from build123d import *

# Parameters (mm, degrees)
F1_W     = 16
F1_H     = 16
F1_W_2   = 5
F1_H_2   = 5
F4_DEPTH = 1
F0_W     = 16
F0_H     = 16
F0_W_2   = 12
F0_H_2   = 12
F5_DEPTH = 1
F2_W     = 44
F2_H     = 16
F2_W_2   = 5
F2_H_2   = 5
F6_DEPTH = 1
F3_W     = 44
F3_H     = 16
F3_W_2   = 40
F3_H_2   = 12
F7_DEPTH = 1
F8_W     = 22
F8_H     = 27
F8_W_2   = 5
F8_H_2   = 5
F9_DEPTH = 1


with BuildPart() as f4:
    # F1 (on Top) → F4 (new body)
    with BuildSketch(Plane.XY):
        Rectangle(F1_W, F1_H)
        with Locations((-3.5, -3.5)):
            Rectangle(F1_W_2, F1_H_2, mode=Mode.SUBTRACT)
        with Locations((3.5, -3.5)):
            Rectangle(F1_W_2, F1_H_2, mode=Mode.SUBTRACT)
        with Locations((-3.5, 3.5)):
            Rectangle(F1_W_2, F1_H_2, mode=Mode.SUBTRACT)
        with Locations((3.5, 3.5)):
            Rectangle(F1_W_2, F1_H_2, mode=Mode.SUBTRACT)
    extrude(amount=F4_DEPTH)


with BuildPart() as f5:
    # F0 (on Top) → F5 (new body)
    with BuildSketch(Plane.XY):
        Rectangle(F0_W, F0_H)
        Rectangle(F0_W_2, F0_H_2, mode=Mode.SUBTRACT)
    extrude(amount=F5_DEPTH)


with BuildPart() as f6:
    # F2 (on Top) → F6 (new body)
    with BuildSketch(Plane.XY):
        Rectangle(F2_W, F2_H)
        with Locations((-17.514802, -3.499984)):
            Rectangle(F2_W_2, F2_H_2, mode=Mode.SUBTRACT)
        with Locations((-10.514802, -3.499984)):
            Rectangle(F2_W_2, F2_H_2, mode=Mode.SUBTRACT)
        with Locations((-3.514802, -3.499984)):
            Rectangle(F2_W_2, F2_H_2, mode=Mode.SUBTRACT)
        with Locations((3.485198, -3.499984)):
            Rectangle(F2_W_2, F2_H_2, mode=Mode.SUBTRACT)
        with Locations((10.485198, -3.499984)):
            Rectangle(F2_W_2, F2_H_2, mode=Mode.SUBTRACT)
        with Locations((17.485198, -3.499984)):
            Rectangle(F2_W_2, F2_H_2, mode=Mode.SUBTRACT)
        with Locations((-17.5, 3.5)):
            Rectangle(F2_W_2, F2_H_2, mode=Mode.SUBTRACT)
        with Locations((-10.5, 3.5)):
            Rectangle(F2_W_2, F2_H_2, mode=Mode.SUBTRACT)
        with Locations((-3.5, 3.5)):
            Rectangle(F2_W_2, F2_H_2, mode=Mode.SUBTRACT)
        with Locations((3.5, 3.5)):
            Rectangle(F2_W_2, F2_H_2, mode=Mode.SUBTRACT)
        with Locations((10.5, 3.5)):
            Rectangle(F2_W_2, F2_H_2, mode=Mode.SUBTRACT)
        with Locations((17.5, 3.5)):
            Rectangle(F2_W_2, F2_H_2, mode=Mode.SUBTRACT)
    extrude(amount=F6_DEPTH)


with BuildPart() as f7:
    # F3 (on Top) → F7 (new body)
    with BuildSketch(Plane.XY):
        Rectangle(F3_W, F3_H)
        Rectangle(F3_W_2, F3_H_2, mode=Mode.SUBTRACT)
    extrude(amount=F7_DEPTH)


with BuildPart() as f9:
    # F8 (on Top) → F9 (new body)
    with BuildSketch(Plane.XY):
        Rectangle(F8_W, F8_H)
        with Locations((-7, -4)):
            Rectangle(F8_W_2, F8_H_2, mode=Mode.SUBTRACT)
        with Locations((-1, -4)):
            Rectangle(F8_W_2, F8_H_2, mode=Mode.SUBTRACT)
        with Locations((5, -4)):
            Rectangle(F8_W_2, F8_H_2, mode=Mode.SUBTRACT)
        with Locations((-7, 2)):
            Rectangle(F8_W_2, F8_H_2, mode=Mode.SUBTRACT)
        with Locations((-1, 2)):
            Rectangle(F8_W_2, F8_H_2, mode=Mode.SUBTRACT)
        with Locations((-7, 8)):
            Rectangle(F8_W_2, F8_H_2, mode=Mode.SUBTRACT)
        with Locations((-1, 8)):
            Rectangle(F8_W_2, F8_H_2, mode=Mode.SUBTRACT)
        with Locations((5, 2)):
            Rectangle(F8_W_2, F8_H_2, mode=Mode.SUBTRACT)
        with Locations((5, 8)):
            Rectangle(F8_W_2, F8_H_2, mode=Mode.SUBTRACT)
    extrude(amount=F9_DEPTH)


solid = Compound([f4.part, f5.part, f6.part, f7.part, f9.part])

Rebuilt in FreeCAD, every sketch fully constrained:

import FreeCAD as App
import Part
import Sketcher
Q = App.Units.Quantity

doc = App.newDocument("Part")
body = doc.addObject("PartDesign::Body", "Body")

# Sketch on XY plane
sketch1 = doc.addObject("Sketcher::SketchObject", "Sketch")
body.addObject(sketch1)
sketch1.AttachmentSupport = (doc.XY_Plane, [""])
sketch1.MapMode = "FlatFace"
sketch1.addGeometry([
    Part.LineSegment(App.Vector(-8, 8, 0), App.Vector(-8, -8, 0)),  # 0
    Part.LineSegment(App.Vector(-8, -8, 0), App.Vector(8, -8, 0)),  # 1
    Part.LineSegment(App.Vector(8, -8, 0), App.Vector(8, 8, 0)),  # 2
    Part.LineSegment(App.Vector(8, 8, 0), App.Vector(-8, 8, 0)),  # 3
    Part.LineSegment(App.Vector(-1, -6, 0), App.Vector(-6, -6, 0)),  # 4
    Part.LineSegment(App.Vector(-6, -6, 0), App.Vector(-6, -1, 0)),  # 5
    Part.LineSegment(App.Vector(-6, -1, 0), App.Vector(-1, -1, 0)),  # 6
    Part.LineSegment(App.Vector(-1, -1, 0), App.Vector(-1, -6, 0)),  # 7
    Part.LineSegment(App.Vector(6, -6, 0), App.Vector(1, -6, 0)),  # 8
    Part.LineSegment(App.Vector(1, -6, 0), App.Vector(1, -1, 0)),  # 9
    Part.LineSegment(App.Vector(1, -1, 0), App.Vector(6, -1, 0)),  # 10
    Part.LineSegment(App.Vector(6, -1, 0), App.Vector(6, -6, 0)),  # 11
    Part.LineSegment(App.Vector(-1, 1, 0), App.Vector(-6, 1, 0)),  # 12
    Part.LineSegment(App.Vector(-6, 1, 0), App.Vector(-6, 6, 0)),  # 13
    Part.LineSegment(App.Vector(-6, 6, 0), App.Vector(-1, 6, 0)),  # 14
    Part.LineSegment(App.Vector(-1, 6, 0), App.Vector(-1, 1, 0)),  # 15
    Part.LineSegment(App.Vector(6, 1, 0), App.Vector(1, 1, 0)),  # 16
    Part.LineSegment(App.Vector(1, 1, 0), App.Vector(1, 6, 0)),  # 17
    Part.LineSegment(App.Vector(1, 6, 0), App.Vector(6, 6, 0)),  # 18
    Part.LineSegment(App.Vector(6, 6, 0), App.Vector(6, 1, 0)),  # 19
], False)
sketch1.addConstraint([
    Sketcher.Constraint("Coincident", 0, 2, 1, 1),
    Sketcher.Constraint("Coincident", 1, 2, 2, 1),
    Sketcher.Constraint("Coincident", 2, 2, 3, 1),
    Sketcher.Constraint("Coincident", 3, 2, 0, 1),
    Sketcher.Constraint("Coincident", 4, 2, 5, 1),
    Sketcher.Constraint("Coincident", 5, 2, 6, 1),
    Sketcher.Constraint("Coincident", 6, 2, 7, 1),
    Sketcher.Constraint("Coincident", 7, 2, 4, 1),
    Sketcher.Constraint("Coincident", 8, 2, 9, 1),
    Sketcher.Constraint("Coincident", 9, 2, 10, 1),
    Sketcher.Constraint("Coincident", 10, 2, 11, 1),
    Sketcher.Constraint("Coincident", 11, 2, 8, 1),
    Sketcher.Constraint("Coincident", 12, 2, 13, 1),
    Sketcher.Constraint("Coincident", 13, 2, 14, 1),
    Sketcher.Constraint("Coincident", 14, 2, 15, 1),
    Sketcher.Constraint("Coincident", 15, 2, 12, 1),
    Sketcher.Constraint("Coincident", 16, 2, 17, 1),
    Sketcher.Constraint("Coincident", 17, 2, 18, 1),
    Sketcher.Constraint("Coincident", 18, 2, 19, 1),
    Sketcher.Constraint("Coincident", 19, 2, 16, 1),
    Sketcher.Constraint("Vertical", 0),
    Sketcher.Constraint("Horizontal", 1),
    Sketcher.Constraint("Vertical", 2),
    Sketcher.Constraint("Horizontal", 3),
    Sketcher.Constraint("Horizontal", 4),
    Sketcher.Constraint("Vertical", 5),
    Sketcher.Constraint("Horizontal", 6),
    Sketcher.Constraint("Vertical", 7),
    Sketcher.Constraint("Horizontal", 8),
    Sketcher.Constraint("Vertical", 9),
    Sketcher.Constraint("Horizontal", 10),
    Sketcher.Constraint("Vertical", 11),
    Sketcher.Constraint("Horizontal", 12),
    Sketcher.Constraint("Vertical", 13),
    Sketcher.Constraint("Horizontal", 14),
    Sketcher.Constraint("Vertical", 15),
    Sketcher.Constraint("Horizontal", 16),
    Sketcher.Constraint("Vertical", 17),
    Sketcher.Constraint("Horizontal", 18),
    Sketcher.Constraint("Vertical", 19),
    Sketcher.Constraint("Symmetric", 0, 2, 2, 2, -1, 1),
    Sketcher.Constraint("Symmetric", 10, 2, 12, 2, -1, 1),
    Sketcher.Constraint("Symmetric", 8, 2, 14, 2, -1, 1),
    Sketcher.Constraint("Symmetric", 6, 2, 16, 2, -1, 1),
    Sketcher.Constraint("Symmetric", 4, 2, 18, 2, -1, 1),
    Sketcher.Constraint("Symmetric", 7, 2, 8, 2, -2),
    Sketcher.Constraint("Symmetric", 5, 2, 10, 2, -2),
    Sketcher.Constraint("Equal", 3, 0),
    Sketcher.Constraint("Equal", 18, 5),
    Sketcher.Constraint("DistanceX", 1, 1, 1, 2, Q("16 mm")),
    Sketcher.Constraint("DistanceX", 4, 2, 4, 1, Q("5 mm")),
    Sketcher.Constraint("DistanceX", 4, 2, -1, 1, Q("6 mm")),
    Sketcher.Constraint("DistanceY", 4, 2, -1, 1, Q("6 mm")),
])
pad1 = doc.addObject("PartDesign::Pad", "Pad")
body.addObject(pad1)
pad1.Profile = sketch1
pad1.Length = 1
body2 = doc.addObject("PartDesign::Body", "Body001")

# Sketch on XY plane
sketch2 = doc.addObject("Sketcher::SketchObject", "Sketch001")
body2.addObject(sketch2)
sketch2.AttachmentSupport = (doc.getObject("XY_Plane001"), [""])
sketch2.MapMode = "FlatFace"
sketch2.addGeometry([
    Part.LineSegment(App.Vector(-8, 8, 0), App.Vector(-8, -8, 0)),  # 0
    Part.LineSegment(App.Vector(-8, -8, 0), App.Vector(8, -8, 0)),  # 1
    Part.LineSegment(App.Vector(8, -8, 0), App.Vector(8, 8, 0)),  # 2
    Part.LineSegment(App.Vector(8, 8, 0), App.Vector(-8, 8, 0)),  # 3
    Part.LineSegment(App.Vector(6, -6, 0), App.Vector(-6, -6, 0)),  # 4
    Part.LineSegment(App.Vector(-6, -6, 0), App.Vector(-6, 6, 0)),  # 5
    Part.LineSegment(App.Vector(-6, 6, 0), App.Vector(6, 6, 0)),  # 6
    Part.LineSegment(App.Vector(6, 6, 0), App.Vector(6, -6, 0)),  # 7
], False)
sketch2.addConstraint([
    Sketcher.Constraint("Coincident", 0, 2, 1, 1),
    Sketcher.Constraint("Coincident", 1, 2, 2, 1),
    Sketcher.Constraint("Coincident", 2, 2, 3, 1),
    Sketcher.Constraint("Coincident", 3, 2, 0, 1),
    Sketcher.Constraint("Coincident", 4, 2, 5, 1),
    Sketcher.Constraint("Coincident", 5, 2, 6, 1),
    Sketcher.Constraint("Coincident", 6, 2, 7, 1),
    Sketcher.Constraint("Coincident", 7, 2, 4, 1),
    Sketcher.Constraint("Vertical", 0),
    Sketcher.Constraint("Horizontal", 1),
    Sketcher.Constraint("Vertical", 2),
    Sketcher.Constraint("Horizontal", 3),
    Sketcher.Constraint("Horizontal", 4),
    Sketcher.Constraint("Vertical", 5),
    Sketcher.Constraint("Horizontal", 6),
    Sketcher.Constraint("Vertical", 7),
    Sketcher.Constraint("Symmetric", 0, 2, 2, 2, -1, 1),
    Sketcher.Constraint("Symmetric", 4, 2, 6, 2, -1, 1),
    Sketcher.Constraint("Equal", 3, 0),
    Sketcher.Constraint("Equal", 6, 5),
    Sketcher.Constraint("DistanceX", 1, 1, 1, 2, Q("16 mm")),
    Sketcher.Constraint("DistanceX", 4, 2, 4, 1, Q("12 mm")),
])
pad2 = doc.addObject("PartDesign::Pad", "Pad001")
body2.addObject(pad2)
pad2.Profile = sketch2
pad2.Length = 1
body3 = doc.addObject("PartDesign::Body", "Body002")

# Sketch on XY plane
sketch3 = doc.addObject("Sketcher::SketchObject", "Sketch002")
body3.addObject(sketch3)
sketch3.AttachmentSupport = (doc.getObject("XY_Plane002"), [""])
sketch3.MapMode = "FlatFace"
sketch3.addGeometry([
    Part.LineSegment(App.Vector(-22, 8, 0), App.Vector(-22, -8, 0)),  # 0
    Part.LineSegment(App.Vector(-22, -8, 0), App.Vector(22, -8, 0)),  # 1
    Part.LineSegment(App.Vector(22, -8, 0), App.Vector(22, 8, 0)),  # 2
    Part.LineSegment(App.Vector(22, 8, 0), App.Vector(-22, 8, 0)),  # 3
    Part.LineSegment(App.Vector(-15.014802, -5.999984, 0), App.Vector(-20.014802, -5.999984, 0)),  # 4
    Part.LineSegment(App.Vector(-20.014802, -5.999984, 0), App.Vector(-20.014802, -0.999984, 0)),  # 5
    Part.LineSegment(App.Vector(-20.014802, -0.999984, 0), App.Vector(-15.014802, -0.999984, 0)),  # 6
    Part.LineSegment(App.Vector(-15.014802, -0.999984, 0), App.Vector(-15.014802, -5.999984, 0)),  # 7
    Part.LineSegment(App.Vector(-8.014802, -5.999984, 0), App.Vector(-13.014802, -5.999984, 0)),  # 8
    Part.LineSegment(App.Vector(-13.014802, -5.999984, 0), App.Vector(-13.014802, -0.999984, 0)),  # 9
    Part.LineSegment(App.Vector(-13.014802, -0.999984, 0), App.Vector(-8.014802, -0.999984, 0)),  # 10
    Part.LineSegment(App.Vector(-8.014802, -0.999984, 0), App.Vector(-8.014802, -5.999984, 0)),  # 11
    Part.LineSegment(App.Vector(-1.014802, -5.999984, 0), App.Vector(-6.014802, -5.999984, 0)),  # 12
    Part.LineSegment(App.Vector(-6.014802, -5.999984, 0), App.Vector(-6.014802, -0.999984, 0)),  # 13
    Part.LineSegment(App.Vector(-6.014802, -0.999984, 0), App.Vector(-1.014802, -0.999984, 0)),  # 14
    Part.LineSegment(App.Vector(-1.014802, -0.999984, 0), App.Vector(-1.014802, -5.999984, 0)),  # 15
    Part.LineSegment(App.Vector(5.985198, -5.999984, 0), App.Vector(0.985198, -5.999984, 0)),  # 16
    Part.LineSegment(App.Vector(0.985198, -5.999984, 0), App.Vector(0.985198, -0.999984, 0)),  # 17
    Part.LineSegment(App.Vector(0.985198, -0.999984, 0), App.Vector(5.985198, -0.999984, 0)),  # 18
    Part.LineSegment(App.Vector(5.985198, -0.999984, 0), App.Vector(5.985198, -5.999984, 0)),  # 19
    Part.LineSegment(App.Vector(12.985198, -5.999984, 0), App.Vector(7.985198, -5.999984, 0)),  # 20
    Part.LineSegment(App.Vector(7.985198, -5.999984, 0), App.Vector(7.985198, -0.999984, 0)),  # 21
    Part.LineSegment(App.Vector(7.985198, -0.999984, 0), App.Vector(12.985198, -0.999984, 0)),  # 22
    Part.LineSegment(App.Vector(12.985198, -0.999984, 0), App.Vector(12.985198, -5.999984, 0)),  # 23
    Part.LineSegment(App.Vector(19.985198, -5.999984, 0), App.Vector(14.985198, -5.999984, 0)),  # 24
    Part.LineSegment(App.Vector(14.985198, -5.999984, 0), App.Vector(14.985198, -0.999984, 0)),  # 25
    Part.LineSegment(App.Vector(14.985198, -0.999984, 0), App.Vector(19.985198, -0.999984, 0)),  # 26
    Part.LineSegment(App.Vector(19.985198, -0.999984, 0), App.Vector(19.985198, -5.999984, 0)),  # 27
    Part.LineSegment(App.Vector(-15, 1, 0), App.Vector(-20, 1, 0)),  # 28
    Part.LineSegment(App.Vector(-20, 1, 0), App.Vector(-20, 6, 0)),  # 29
    Part.LineSegment(App.Vector(-20, 6, 0), App.Vector(-15, 6, 0)),  # 30
    Part.LineSegment(App.Vector(-15, 6, 0), App.Vector(-15, 1, 0)),  # 31
    Part.LineSegment(App.Vector(-8, 1, 0), App.Vector(-13, 1, 0)),  # 32
    Part.LineSegment(App.Vector(-13, 1, 0), App.Vector(-13, 6, 0)),  # 33
    Part.LineSegment(App.Vector(-13, 6, 0), App.Vector(-8, 6, 0)),  # 34
    Part.LineSegment(App.Vector(-8, 6, 0), App.Vector(-8, 1, 0)),  # 35
    Part.LineSegment(App.Vector(-1, 1, 0), App.Vector(-6, 1, 0)),  # 36
    Part.LineSegment(App.Vector(-6, 1, 0), App.Vector(-6, 6, 0)),  # 37
    Part.LineSegment(App.Vector(-6, 6, 0), App.Vector(-1, 6, 0)),  # 38
    Part.LineSegment(App.Vector(-1, 6, 0), App.Vector(-1, 1, 0)),  # 39
    Part.LineSegment(App.Vector(6, 1, 0), App.Vector(1, 1, 0)),  # 40
    Part.LineSegment(App.Vector(1, 1, 0), App.Vector(1, 6, 0)),  # 41
    Part.LineSegment(App.Vector(1, 6, 0), App.Vector(6, 6, 0)),  # 42
    Part.LineSegment(App.Vector(6, 6, 0), App.Vector(6, 1, 0)),  # 43
    Part.LineSegment(App.Vector(13, 1, 0), App.Vector(8, 1, 0)),  # 44
    Part.LineSegment(App.Vector(8, 1, 0), App.Vector(8, 6, 0)),  # 45
    Part.LineSegment(App.Vector(8, 6, 0), App.Vector(13, 6, 0)),  # 46
    Part.LineSegment(App.Vector(13, 6, 0), App.Vector(13, 1, 0)),  # 47
    Part.LineSegment(App.Vector(20, 1, 0), App.Vector(15, 1, 0)),  # 48
    Part.LineSegment(App.Vector(15, 1, 0), App.Vector(15, 6, 0)),  # 49
    Part.LineSegment(App.Vector(15, 6, 0), App.Vector(20, 6, 0)),  # 50
    Part.LineSegment(App.Vector(20, 6, 0), App.Vector(20, 1, 0)),  # 51
], False)
sketch3.addConstraint([
    Sketcher.Constraint("Coincident", 0, 2, 1, 1),
    Sketcher.Constraint("Coincident", 1, 2, 2, 1),
    Sketcher.Constraint("Coincident", 2, 2, 3, 1),
    Sketcher.Constraint("Coincident", 3, 2, 0, 1),
    Sketcher.Constraint("Coincident", 4, 2, 5, 1),
    Sketcher.Constraint("Coincident", 5, 2, 6, 1),
    Sketcher.Constraint("Coincident", 6, 2, 7, 1),
    Sketcher.Constraint("Coincident", 7, 2, 4, 1),
    Sketcher.Constraint("Coincident", 8, 2, 9, 1),
    Sketcher.Constraint("Coincident", 9, 2, 10, 1),
    Sketcher.Constraint("Coincident", 10, 2, 11, 1),
    Sketcher.Constraint("Coincident", 11, 2, 8, 1),
    Sketcher.Constraint("Coincident", 12, 2, 13, 1),
    Sketcher.Constraint("Coincident", 13, 2, 14, 1),
    Sketcher.Constraint("Coincident", 14, 2, 15, 1),
    Sketcher.Constraint("Coincident", 15, 2, 12, 1),
    Sketcher.Constraint("Coincident", 16, 2, 17, 1),
    Sketcher.Constraint("Coincident", 17, 2, 18, 1),
    Sketcher.Constraint("Coincident", 18, 2, 19, 1),
    Sketcher.Constraint("Coincident", 19, 2, 16, 1),
    Sketcher.Constraint("Coincident", 20, 2, 21, 1),
    Sketcher.Constraint("Coincident", 21, 2, 22, 1),
    Sketcher.Constraint("Coincident", 22, 2, 23, 1),
    Sketcher.Constraint("Coincident", 23, 2, 20, 1),
    Sketcher.Constraint("Coincident", 24, 2, 25, 1),
    Sketcher.Constraint("Coincident", 25, 2, 26, 1),
    Sketcher.Constraint("Coincident", 26, 2, 27, 1),
    Sketcher.Constraint("Coincident", 27, 2, 24, 1),
    Sketcher.Constraint("Coincident", 28, 2, 29, 1),
    Sketcher.Constraint("Coincident", 29, 2, 30, 1),
    Sketcher.Constraint("Coincident", 30, 2, 31, 1),
    Sketcher.Constraint("Coincident", 31, 2, 28, 1),
    Sketcher.Constraint("Coincident", 32, 2, 33, 1),
    Sketcher.Constraint("Coincident", 33, 2, 34, 1),
    Sketcher.Constraint("Coincident", 34, 2, 35, 1),
    Sketcher.Constraint("Coincident", 35, 2, 32, 1),
    Sketcher.Constraint("Coincident", 36, 2, 37, 1),
    Sketcher.Constraint("Coincident", 37, 2, 38, 1),
    Sketcher.Constraint("Coincident", 38, 2, 39, 1),
    Sketcher.Constraint("Coincident", 39, 2, 36, 1),
    Sketcher.Constraint("Coincident", 40, 2, 41, 1),
    Sketcher.Constraint("Coincident", 41, 2, 42, 1),
    Sketcher.Constraint("Coincident", 42, 2, 43, 1),
    Sketcher.Constraint("Coincident", 43, 2, 40, 1),
    Sketcher.Constraint("Coincident", 44, 2, 45, 1),
    Sketcher.Constraint("Coincident", 45, 2, 46, 1),
    Sketcher.Constraint("Coincident", 46, 2, 47, 1),
    Sketcher.Constraint("Coincident", 47, 2, 44, 1),
    Sketcher.Constraint("Coincident", 48, 2, 49, 1),
    Sketcher.Constraint("Coincident", 49, 2, 50, 1),
    Sketcher.Constraint("Coincident", 50, 2, 51, 1),
    Sketcher.Constraint("Coincident", 51, 2, 48, 1),
    Sketcher.Constraint("Vertical", 0),
    Sketcher.Constraint("Horizontal", 1),
    Sketcher.Constraint("Vertical", 2),
    Sketcher.Constraint("Horizontal", 3),
    Sketcher.Constraint("Horizontal", 4),
    Sketcher.Constraint("Vertical", 5),
    Sketcher.Constraint("Horizontal", 6),
    Sketcher.Constraint("Vertical", 7),
    Sketcher.Constraint("Horizontal", 8),
    Sketcher.Constraint("Vertical", 9),
    Sketcher.Constraint("Horizontal", 10),
    Sketcher.Constraint("Vertical", 11),
    Sketcher.Constraint("Horizontal", 12),
    Sketcher.Constraint("Vertical", 13),
    Sketcher.Constraint("Horizontal", 14),
    Sketcher.Constraint("Vertical", 15),
    Sketcher.Constraint("Horizontal", 16),
    Sketcher.Constraint("Vertical", 17),
    Sketcher.Constraint("Horizontal", 18),
    Sketcher.Constraint("Vertical", 19),
    Sketcher.Constraint("Horizontal", 20),
    Sketcher.Constraint("Vertical", 21),
    Sketcher.Constraint("Horizontal", 22),
    Sketcher.Constraint("Vertical", 23),
    Sketcher.Constraint("Horizontal", 24),
    Sketcher.Constraint("Vertical", 25),
    Sketcher.Constraint("Horizontal", 26),
    Sketcher.Constraint("Vertical", 27),
    Sketcher.Constraint("Horizontal", 28),
    Sketcher.Constraint("Vertical", 29),
    Sketcher.Constraint("Horizontal", 30),
    Sketcher.Constraint("Vertical", 31),
    Sketcher.Constraint("Horizontal", 32),
    Sketcher.Constraint("Vertical", 33),
    Sketcher.Constraint("Horizontal", 34),
    Sketcher.Constraint("Vertical", 35),
    Sketcher.Constraint("Horizontal", 36),
    Sketcher.Constraint("Vertical", 37),
    Sketcher.Constraint("Horizontal", 38),
    Sketcher.Constraint("Vertical", 39),
    Sketcher.Constraint("Horizontal", 40),
    Sketcher.Constraint("Vertical", 41),
    Sketcher.Constraint("Horizontal", 42),
    Sketcher.Constraint("Vertical", 43),
    Sketcher.Constraint("Horizontal", 44),
    Sketcher.Constraint("Vertical", 45),
    Sketcher.Constraint("Horizontal", 46),
    Sketcher.Constraint("Vertical", 47),
    Sketcher.Constraint("Horizontal", 48),
    Sketcher.Constraint("Vertical", 49),
    Sketcher.Constraint("Horizontal", 50),
    Sketcher.Constraint("Vertical", 51),
    Sketcher.Constraint("Symmetric", 0, 2, 2, 2, -1, 1),
    Sketcher.Constraint("Symmetric", 39, 2, 40, 2, -2),
    Sketcher.Constraint("Symmetric", 37, 2, 42, 2, -2),
    Sketcher.Constraint("Symmetric", 35, 2, 44, 2, -2),
    Sketcher.Constraint("Symmetric", 33, 2, 46, 2, -2),
    Sketcher.Constraint("Symmetric", 31, 2, 48, 2, -2),
    Sketcher.Constraint("Symmetric", 29, 2, 50, 2, -2),
    Sketcher.Constraint("Horizontal", 7, 2, 8, 2),
    Sketcher.Constraint("Horizontal", 6, 2, 9, 2),
    Sketcher.Constraint("Horizontal", 11, 2, 12, 2),
    Sketcher.Constraint("Horizontal", 10, 2, 13, 2),
    Sketcher.Constraint("Horizontal", 15, 2, 16, 2),
    Sketcher.Constraint("Horizontal", 14, 2, 17, 2),
    Sketcher.Constraint("Horizontal", 19, 2, 20, 2),
    Sketcher.Constraint("Horizontal", 18, 2, 21, 2),
    Sketcher.Constraint("Horizontal", 23, 2, 24, 2),
    Sketcher.Constraint("Horizontal", 22, 2, 25, 2),
    Sketcher.Constraint("Horizontal", 31, 2, 32, 2),
    Sketcher.Constraint("Horizontal", 30, 2, 33, 2),
    Sketcher.Constraint("Horizontal", 35, 2, 36, 2),
    Sketcher.Constraint("Horizontal", 34, 2, 37, 2),
    Sketcher.Constraint("Equal", 6, 8),
    Sketcher.Constraint("Equal", 10, 12),
    Sketcher.Constraint("Equal", 14, 16),
    Sketcher.Constraint("Equal", 18, 20),
    Sketcher.Constraint("Equal", 22, 24),
    Sketcher.Constraint("Equal", 26, 28),
    Sketcher.Constraint("Equal", 30, 32),
    Sketcher.Constraint("Equal", 34, 36),
    Sketcher.Constraint("Equal", 50, 5),
    Sketcher.Constraint("Equal", 27, 29),
    Sketcher.Constraint("DistanceX", 1, 1, 1, 2, Q("44 mm")),
    Sketcher.Constraint("DistanceX", 4, 2, 4, 1, Q("5 mm")),
    Sketcher.Constraint("DistanceY", 0, 2, 0, 1, Q("16 mm")),
    Sketcher.Constraint("DistanceX", 28, 2, -1, 1, Q("20 mm")),
    Sketcher.Constraint("DistanceY", -1, 1, 28, 2, Q("1 mm")),
    Sketcher.Constraint("DistanceX", 32, 2, -1, 1, Q("13 mm")),
    Sketcher.Constraint("DistanceX", 36, 2, -1, 1, Q("6 mm")),
    Sketcher.Constraint("DistanceX", 7, 2, 8, 2, Q("2 mm")),
    Sketcher.Constraint("DistanceX", 11, 2, 12, 2, Q("2 mm")),
    Sketcher.Constraint("DistanceX", 15, 2, 16, 2, Q("2 mm")),
    Sketcher.Constraint("DistanceX", 19, 2, 20, 2, Q("2 mm")),
    Sketcher.Constraint("DistanceX", 23, 2, 24, 2, Q("2 mm")),
    Sketcher.Constraint("DistanceX", 4, 2, -1, 1, Q("20.014802 mm")),
    Sketcher.Constraint("DistanceY", 4, 2, -1, 1, Q("5.999984 mm")),
])
pad3 = doc.addObject("PartDesign::Pad", "Pad002")
body3.addObject(pad3)
pad3.Profile = sketch3
pad3.Length = 1
body4 = doc.addObject("PartDesign::Body", "Body003")

# Sketch on XY plane
sketch4 = doc.addObject("Sketcher::SketchObject", "Sketch003")
body4.addObject(sketch4)
sketch4.AttachmentSupport = (doc.getObject("XY_Plane003"), [""])
sketch4.MapMode = "FlatFace"
sketch4.addGeometry([
    Part.LineSegment(App.Vector(-22, 8, 0), App.Vector(-22, -8, 0)),  # 0
    Part.LineSegment(App.Vector(-22, -8, 0), App.Vector(22, -8, 0)),  # 1
    Part.LineSegment(App.Vector(22, -8, 0), App.Vector(22, 8, 0)),  # 2
    Part.LineSegment(App.Vector(22, 8, 0), App.Vector(-22, 8, 0)),  # 3
    Part.LineSegment(App.Vector(20, -6, 0), App.Vector(-20, -6, 0)),  # 4
    Part.LineSegment(App.Vector(-20, -6, 0), App.Vector(-20, 6, 0)),  # 5
    Part.LineSegment(App.Vector(-20, 6, 0), App.Vector(20, 6, 0)),  # 6
    Part.LineSegment(App.Vector(20, 6, 0), App.Vector(20, -6, 0)),  # 7
], False)
sketch4.addConstraint([
    Sketcher.Constraint("Coincident", 0, 2, 1, 1),
    Sketcher.Constraint("Coincident", 1, 2, 2, 1),
    Sketcher.Constraint("Coincident", 2, 2, 3, 1),
    Sketcher.Constraint("Coincident", 3, 2, 0, 1),
    Sketcher.Constraint("Coincident", 4, 2, 5, 1),
    Sketcher.Constraint("Coincident", 5, 2, 6, 1),
    Sketcher.Constraint("Coincident", 6, 2, 7, 1),
    Sketcher.Constraint("Coincident", 7, 2, 4, 1),
    Sketcher.Constraint("Vertical", 0),
    Sketcher.Constraint("Horizontal", 1),
    Sketcher.Constraint("Vertical", 2),
    Sketcher.Constraint("Horizontal", 3),
    Sketcher.Constraint("Horizontal", 4),
    Sketcher.Constraint("Vertical", 5),
    Sketcher.Constraint("Horizontal", 6),
    Sketcher.Constraint("Vertical", 7),
    Sketcher.Constraint("Symmetric", 0, 2, 2, 2, -1, 1),
    Sketcher.Constraint("Symmetric", 4, 2, 6, 2, -1, 1),
    Sketcher.Constraint("DistanceX", 1, 1, 1, 2, Q("44 mm")),
    Sketcher.Constraint("DistanceX", 4, 2, 4, 1, Q("40 mm")),
    Sketcher.Constraint("DistanceY", 0, 2, 0, 1, Q("16 mm")),
    Sketcher.Constraint("DistanceY", 5, 1, 5, 2, Q("12 mm")),
])
pad4 = doc.addObject("PartDesign::Pad", "Pad003")
body4.addObject(pad4)
pad4.Profile = sketch4
pad4.Length = 1
body5 = doc.addObject("PartDesign::Body", "Body004")

# Sketch on XY plane
sketch5 = doc.addObject("Sketcher::SketchObject", "Sketch004")
body5.addObject(sketch5)
sketch5.AttachmentSupport = (doc.getObject("XY_Plane004"), [""])
sketch5.MapMode = "FlatFace"
sketch5.addGeometry([
    Part.LineSegment(App.Vector(-11, 13.5, 0), App.Vector(-11, -13.5, 0)),  # 0
    Part.LineSegment(App.Vector(-11, -13.5, 0), App.Vector(11, -13.5, 0)),  # 1
    Part.LineSegment(App.Vector(11, -13.5, 0), App.Vector(11, 13.5, 0)),  # 2
    Part.LineSegment(App.Vector(11, 13.5, 0), App.Vector(-11, 13.5, 0)),  # 3
    Part.LineSegment(App.Vector(-4.5, -6.5, 0), App.Vector(-9.5, -6.5, 0)),  # 4
    Part.LineSegment(App.Vector(-9.5, -6.5, 0), App.Vector(-9.5, -1.5, 0)),  # 5
    Part.LineSegment(App.Vector(-9.5, -1.5, 0), App.Vector(-4.5, -1.5, 0)),  # 6
    Part.LineSegment(App.Vector(-4.5, -1.5, 0), App.Vector(-4.5, -6.5, 0)),  # 7
    Part.LineSegment(App.Vector(1.5, -6.5, 0), App.Vector(-3.5, -6.5, 0)),  # 8
    Part.LineSegment(App.Vector(-3.5, -6.5, 0), App.Vector(-3.5, -1.5, 0)),  # 9
    Part.LineSegment(App.Vector(-3.5, -1.5, 0), App.Vector(1.5, -1.5, 0)),  # 10
    Part.LineSegment(App.Vector(1.5, -1.5, 0), App.Vector(1.5, -6.5, 0)),  # 11
    Part.LineSegment(App.Vector(7.5, -6.5, 0), App.Vector(2.5, -6.5, 0)),  # 12
    Part.LineSegment(App.Vector(2.5, -6.5, 0), App.Vector(2.5, -1.5, 0)),  # 13
    Part.LineSegment(App.Vector(2.5, -1.5, 0), App.Vector(7.5, -1.5, 0)),  # 14
    Part.LineSegment(App.Vector(7.5, -1.5, 0), App.Vector(7.5, -6.5, 0)),  # 15
    Part.LineSegment(App.Vector(-4.5, -0.5, 0), App.Vector(-9.5, -0.5, 0)),  # 16
    Part.LineSegment(App.Vector(-9.5, -0.5, 0), App.Vector(-9.5, 4.5, 0)),  # 17
    Part.LineSegment(App.Vector(-9.5, 4.5, 0), App.Vector(-4.5, 4.5, 0)),  # 18
    Part.LineSegment(App.Vector(-4.5, 4.5, 0), App.Vector(-4.5, -0.5, 0)),  # 19
    Part.LineSegment(App.Vector(-4.5, 5.5, 0), App.Vector(-9.5, 5.5, 0)),  # 20
    Part.LineSegment(App.Vector(-9.5, 5.5, 0), App.Vector(-9.5, 10.5, 0)),  # 21
    Part.LineSegment(App.Vector(-9.5, 10.5, 0), App.Vector(-4.5, 10.5, 0)),  # 22
    Part.LineSegment(App.Vector(-4.5, 10.5, 0), App.Vector(-4.5, 5.5, 0)),  # 23
    Part.LineSegment(App.Vector(1.5, -0.5, 0), App.Vector(-3.5, -0.5, 0)),  # 24
    Part.LineSegment(App.Vector(-3.5, -0.5, 0), App.Vector(-3.5, 4.5, 0)),  # 25
    Part.LineSegment(App.Vector(-3.5, 4.5, 0), App.Vector(1.5, 4.5, 0)),  # 26
    Part.LineSegment(App.Vector(1.5, 4.5, 0), App.Vector(1.5, -0.5, 0)),  # 27
    Part.LineSegment(App.Vector(7.5, -0.5, 0), App.Vector(2.5, -0.5, 0)),  # 28
    Part.LineSegment(App.Vector(2.5, -0.5, 0), App.Vector(2.5, 4.5, 0)),  # 29
    Part.LineSegment(App.Vector(2.5, 4.5, 0), App.Vector(7.5, 4.5, 0)),  # 30
    Part.LineSegment(App.Vector(7.5, 4.5, 0), App.Vector(7.5, -0.5, 0)),  # 31
    Part.LineSegment(App.Vector(1.5, 5.5, 0), App.Vector(-3.5, 5.5, 0)),  # 32
    Part.LineSegment(App.Vector(-3.5, 5.5, 0), App.Vector(-3.5, 10.5, 0)),  # 33
    Part.LineSegment(App.Vector(-3.5, 10.5, 0), App.Vector(1.5, 10.5, 0)),  # 34
    Part.LineSegment(App.Vector(1.5, 10.5, 0), App.Vector(1.5, 5.5, 0)),  # 35
    Part.LineSegment(App.Vector(7.5, 5.5, 0), App.Vector(2.5, 5.5, 0)),  # 36
    Part.LineSegment(App.Vector(2.5, 5.5, 0), App.Vector(2.5, 10.5, 0)),  # 37
    Part.LineSegment(App.Vector(2.5, 10.5, 0), App.Vector(7.5, 10.5, 0)),  # 38
    Part.LineSegment(App.Vector(7.5, 10.5, 0), App.Vector(7.5, 5.5, 0)),  # 39
], False)
sketch5.addConstraint([
    Sketcher.Constraint("Coincident", 0, 2, 1, 1),
    Sketcher.Constraint("Coincident", 1, 2, 2, 1),
    Sketcher.Constraint("Coincident", 2, 2, 3, 1),
    Sketcher.Constraint("Coincident", 3, 2, 0, 1),
    Sketcher.Constraint("Coincident", 4, 2, 5, 1),
    Sketcher.Constraint("Coincident", 5, 2, 6, 1),
    Sketcher.Constraint("Coincident", 6, 2, 7, 1),
    Sketcher.Constraint("Coincident", 7, 2, 4, 1),
    Sketcher.Constraint("Coincident", 8, 2, 9, 1),
    Sketcher.Constraint("Coincident", 9, 2, 10, 1),
    Sketcher.Constraint("Coincident", 10, 2, 11, 1),
    Sketcher.Constraint("Coincident", 11, 2, 8, 1),
    Sketcher.Constraint("Coincident", 12, 2, 13, 1),
    Sketcher.Constraint("Coincident", 13, 2, 14, 1),
    Sketcher.Constraint("Coincident", 14, 2, 15, 1),
    Sketcher.Constraint("Coincident", 15, 2, 12, 1),
    Sketcher.Constraint("Coincident", 16, 2, 17, 1),
    Sketcher.Constraint("Coincident", 17, 2, 18, 1),
    Sketcher.Constraint("Coincident", 18, 2, 19, 1),
    Sketcher.Constraint("Coincident", 19, 2, 16, 1),
    Sketcher.Constraint("Coincident", 20, 2, 21, 1),
    Sketcher.Constraint("Coincident", 21, 2, 22, 1),
    Sketcher.Constraint("Coincident", 22, 2, 23, 1),
    Sketcher.Constraint("Coincident", 23, 2, 20, 1),
    Sketcher.Constraint("Coincident", 24, 2, 25, 1),
    Sketcher.Constraint("Coincident", 25, 2, 26, 1),
    Sketcher.Constraint("Coincident", 26, 2, 27, 1),
    Sketcher.Constraint("Coincident", 27, 2, 24, 1),
    Sketcher.Constraint("Coincident", 28, 2, 29, 1),
    Sketcher.Constraint("Coincident", 29, 2, 30, 1),
    Sketcher.Constraint("Coincident", 30, 2, 31, 1),
    Sketcher.Constraint("Coincident", 31, 2, 28, 1),
    Sketcher.Constraint("Coincident", 32, 2, 33, 1),
    Sketcher.Constraint("Coincident", 33, 2, 34, 1),
    Sketcher.Constraint("Coincident", 34, 2, 35, 1),
    Sketcher.Constraint("Coincident", 35, 2, 32, 1),
    Sketcher.Constraint("Coincident", 36, 2, 37, 1),
    Sketcher.Constraint("Coincident", 37, 2, 38, 1),
    Sketcher.Constraint("Coincident", 38, 2, 39, 1),
    Sketcher.Constraint("Coincident", 39, 2, 36, 1),
    Sketcher.Constraint("Vertical", 0),
    Sketcher.Constraint("Horizontal", 1),
    Sketcher.Constraint("Vertical", 2),
    Sketcher.Constraint("Horizontal", 3),
    Sketcher.Constraint("Horizontal", 4),
    Sketcher.Constraint("Vertical", 5),
    Sketcher.Constraint("Horizontal", 6),
    Sketcher.Constraint("Vertical", 7),
    Sketcher.Constraint("Horizontal", 8),
    Sketcher.Constraint("Vertical", 9),
    Sketcher.Constraint("Horizontal", 10),
    Sketcher.Constraint("Vertical", 11),
    Sketcher.Constraint("Horizontal", 12),
    Sketcher.Constraint("Vertical", 13),
    Sketcher.Constraint("Horizontal", 14),
    Sketcher.Constraint("Vertical", 15),
    Sketcher.Constraint("Horizontal", 16),
    Sketcher.Constraint("Vertical", 17),
    Sketcher.Constraint("Horizontal", 18),
    Sketcher.Constraint("Vertical", 19),
    Sketcher.Constraint("Horizontal", 20),
    Sketcher.Constraint("Vertical", 21),
    Sketcher.Constraint("Horizontal", 22),
    Sketcher.Constraint("Vertical", 23),
    Sketcher.Constraint("Horizontal", 24),
    Sketcher.Constraint("Vertical", 25),
    Sketcher.Constraint("Horizontal", 26),
    Sketcher.Constraint("Vertical", 27),
    Sketcher.Constraint("Horizontal", 28),
    Sketcher.Constraint("Vertical", 29),
    Sketcher.Constraint("Horizontal", 30),
    Sketcher.Constraint("Vertical", 31),
    Sketcher.Constraint("Horizontal", 32),
    Sketcher.Constraint("Vertical", 33),
    Sketcher.Constraint("Horizontal", 34),
    Sketcher.Constraint("Vertical", 35),
    Sketcher.Constraint("Horizontal", 36),
    Sketcher.Constraint("Vertical", 37),
    Sketcher.Constraint("Horizontal", 38),
    Sketcher.Constraint("Vertical", 39),
    Sketcher.Constraint("Symmetric", 0, 2, 2, 2, -1, 1),
    Sketcher.Constraint("Horizontal", 7, 2, 8, 2),
    Sketcher.Constraint("Horizontal", 6, 2, 9, 2),
    Sketcher.Constraint("Horizontal", 11, 2, 12, 2),
    Sketcher.Constraint("Horizontal", 10, 2, 13, 2),
    Sketcher.Constraint("Horizontal", 19, 2, 24, 2),
    Sketcher.Constraint("Horizontal", 18, 2, 25, 2),
    Sketcher.Constraint("Horizontal", 27, 2, 28, 2),
    Sketcher.Constraint("Horizontal", 26, 2, 29, 2),
    Sketcher.Constraint("Horizontal", 23, 2, 32, 2),
    Sketcher.Constraint("Horizontal", 22, 2, 33, 2),
    Sketcher.Constraint("Horizontal", 35, 2, 36, 2),
    Sketcher.Constraint("Horizontal", 34, 2, 37, 2),
    Sketcher.Constraint("Vertical", 5, 2, 16, 2),
    Sketcher.Constraint("Vertical", 7, 2, 18, 2),
    Sketcher.Constraint("Vertical", 17, 2, 20, 2),
    Sketcher.Constraint("Vertical", 19, 2, 22, 2),
    Sketcher.Constraint("Vertical", 9, 2, 24, 2),
    Sketcher.Constraint("Vertical", 11, 2, 26, 2),
    Sketcher.Constraint("Vertical", 13, 2, 28, 2),
    Sketcher.Constraint("Vertical", 15, 2, 30, 2),
    Sketcher.Constraint("Vertical", 25, 2, 32, 2),
    Sketcher.Constraint("Vertical", 27, 2, 34, 2),
    Sketcher.Constraint("Vertical", 29, 2, 36, 2),
    Sketcher.Constraint("Vertical", 31, 2, 38, 2),
    Sketcher.Constraint("Equal", 6, 8),
    Sketcher.Constraint("Equal", 10, 12),
    Sketcher.Constraint("Equal", 38, 5),
    Sketcher.Constraint("Equal", 15, 17),
    Sketcher.Constraint("Equal", 19, 21),
    Sketcher.Constraint("DistanceX", 1, 1, 1, 2, Q("22 mm")),
    Sketcher.Constraint("DistanceX", 4, 2, 4, 1, Q("5 mm")),
    Sketcher.Constraint("DistanceY", 0, 2, 0, 1, Q("27 mm")),
    Sketcher.Constraint("DistanceY", 0, 2, 4, 2, Q("7 mm")),
    Sketcher.Constraint("DistanceX", 7, 2, 8, 2, Q("1 mm")),
    Sketcher.Constraint("DistanceX", 11, 2, 12, 2, Q("1 mm")),
    Sketcher.Constraint("DistanceY", 5, 2, 16, 2, Q("1 mm")),
    Sketcher.Constraint("DistanceY", 17, 2, 20, 2, Q("1 mm")),
    Sketcher.Constraint("DistanceX", 4, 2, -1, 1, Q("9.5 mm")),
])
pad5 = doc.addObject("PartDesign::Pad", "Pad004")
body5.addObject(pad5)
pad5.Profile = sketch5
pad5.Length = 1

doc.recompute()
